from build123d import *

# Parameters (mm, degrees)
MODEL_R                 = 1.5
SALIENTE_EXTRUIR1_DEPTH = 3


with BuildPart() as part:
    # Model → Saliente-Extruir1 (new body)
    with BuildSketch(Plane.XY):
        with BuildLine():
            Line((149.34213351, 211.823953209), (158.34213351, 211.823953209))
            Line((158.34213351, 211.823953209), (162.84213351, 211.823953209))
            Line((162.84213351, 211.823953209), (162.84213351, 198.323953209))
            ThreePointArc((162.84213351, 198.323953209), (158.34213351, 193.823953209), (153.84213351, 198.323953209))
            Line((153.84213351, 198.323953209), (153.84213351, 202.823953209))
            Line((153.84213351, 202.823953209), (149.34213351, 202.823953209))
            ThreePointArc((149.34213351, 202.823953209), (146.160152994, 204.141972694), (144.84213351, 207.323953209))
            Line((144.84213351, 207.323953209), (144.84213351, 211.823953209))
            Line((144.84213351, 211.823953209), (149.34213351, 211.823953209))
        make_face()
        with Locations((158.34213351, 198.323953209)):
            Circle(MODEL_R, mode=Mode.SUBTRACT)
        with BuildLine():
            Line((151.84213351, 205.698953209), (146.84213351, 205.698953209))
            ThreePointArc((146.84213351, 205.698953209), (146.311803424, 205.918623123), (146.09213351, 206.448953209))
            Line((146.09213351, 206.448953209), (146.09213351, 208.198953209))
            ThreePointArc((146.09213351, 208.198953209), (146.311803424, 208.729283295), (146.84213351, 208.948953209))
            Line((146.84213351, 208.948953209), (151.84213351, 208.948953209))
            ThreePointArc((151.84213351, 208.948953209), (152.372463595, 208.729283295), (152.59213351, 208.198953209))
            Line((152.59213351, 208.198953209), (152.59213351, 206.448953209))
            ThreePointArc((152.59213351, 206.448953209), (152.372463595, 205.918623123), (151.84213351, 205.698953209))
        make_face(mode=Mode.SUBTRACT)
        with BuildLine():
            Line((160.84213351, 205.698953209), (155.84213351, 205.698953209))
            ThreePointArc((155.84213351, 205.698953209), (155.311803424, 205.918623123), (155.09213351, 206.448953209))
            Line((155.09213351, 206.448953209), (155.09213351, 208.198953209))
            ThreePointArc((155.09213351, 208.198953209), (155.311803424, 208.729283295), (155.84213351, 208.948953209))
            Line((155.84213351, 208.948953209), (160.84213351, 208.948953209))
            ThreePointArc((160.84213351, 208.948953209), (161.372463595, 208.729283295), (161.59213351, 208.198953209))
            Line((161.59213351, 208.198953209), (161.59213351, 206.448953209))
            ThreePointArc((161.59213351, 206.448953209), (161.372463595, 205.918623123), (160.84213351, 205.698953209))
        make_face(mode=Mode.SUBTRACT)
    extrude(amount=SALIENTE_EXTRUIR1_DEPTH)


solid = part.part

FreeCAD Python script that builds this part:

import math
import FreeCAD as App
import Part
import Sketcher
from FreeCAD import Vector
Q = App.Units.Quantity

doc = App.newDocument("Part")
body = doc.addObject("PartDesign::Body", "Body")

sketch1 = doc.addObject("Sketcher::SketchObject", "Sketch")
body.addObject(sketch1)
sketch1.AttachmentSupport = (doc.XY_Plane, [""])
sketch1.MapMode = "FlatFace"
sketch1.addGeometry([
    Part.LineSegment(Vector(162.8, 198.3, 0), Vector(162.8, 211.8, 0)),
    Part.LineSegment(Vector(162.8, 211.8, 0), Vector(144.8, 211.8, 0)),
    Part.LineSegment(Vector(144.8, 211.8, 0), Vector(144.8, 207.3, 0)),
    Part.ArcOfCircle(Part.Circle(Vector(149.3, 207.3, 0), Vector(0, 0, 1), 4.5), math.radians(180), math.radians(270)),
    Part.LineSegment(Vector(149.3, 202.8, 0), Vector(153.8, 202.8, 0)),
    Part.LineSegment(Vector(153.8, 202.8, 0), Vector(153.8, 198.3, 0)),
    Part.ArcOfCircle(Part.Circle(Vector(158.3, 198.3, 0), Vector(0, 0, 1), 4.5), math.radians(180), math.radians(360)),
    Part.Circle(Vector(158.3, 198.3, 0), Vector(0, 0, 1), 1.5),
    Part.LineSegment(Vector(160.8, 205.7, 0), Vector(155.8, 205.7, 0)),
    Part.ArcOfCircle(Part.Circle(Vector(155.8, 206.4, 0), Vector(0, 0, 1), 0.8), math.radians(180), math.radians(270)),
    Part.LineSegment(Vector(155.1, 206.4, 0), Vector(155.1, 208.2, 0)),
    Part.ArcOfCircle(Part.Circle(Vector(155.8, 208.2, 0), Vector(0, 0, 1), 0.8), math.radians(90), math.radians(180)),
    Part.LineSegment(Vector(155.8, 208.9, 0), Vector(160.8, 208.9, 0)),
    Part.ArcOfCircle(Part.Circle(Vector(160.8, 208.2, 0), Vector(0, 0, 1), 0.8), math.radians(0), math.radians(90)),
    Part.LineSegment(Vector(161.6, 208.2, 0), Vector(161.6, 206.4, 0)),
    Part.ArcOfCircle(Part.Circle(Vector(160.8, 206.4, 0), Vector(0, 0, 1), 0.8), math.radians(-90), math.radians(0)),
    Part.LineSegment(Vector(151.8, 205.7, 0), Vector(146.8, 205.7, 0)),
    Part.ArcOfCircle(Part.Circle(Vector(146.8, 206.4, 0), Vector(0, 0, 1), 0.8), math.radians(180), math.radians(270)),
    Part.LineSegment(Vector(146.1, 206.4, 0), Vector(146.1, 208.2, 0)),
    Part.ArcOfCircle(Part.Circle(Vector(146.8, 208.2, 0), Vector(0, 0, 1), 0.8), math.radians(90), math.radians(180)),
    Part.LineSegment(Vector(146.8, 208.9, 0), Vector(151.8, 208.9, 0)),
    Part.ArcOfCircle(Part.Circle(Vector(151.8, 208.2, 0), Vector(0, 0, 1), 0.8), math.radians(0), math.radians(90)),
    Part.LineSegment(Vector(152.6, 208.2, 0), Vector(152.6, 206.4, 0)),
    Part.ArcOfCircle(Part.Circle(Vector(151.8, 206.4, 0), Vector(0, 0, 1), 0.8), math.radians(-90), math.radians(0)),
], False)
sketch1.addConstraint([
    Sketcher.Constraint("Coincident", 0, 2, 1, 1),
    Sketcher.Constraint("Coincident", 1, 2, 2, 1),
    Sketcher.Constraint("Tangent", 2, 2, 3, 1),
    Sketcher.Constraint("Tangent", 3, 2, 4, 1),
    Sketcher.Constraint("Coincident", 4, 2, 5, 1),
    Sketcher.Constraint("Tangent", 5, 2, 6, 1),
    Sketcher.Constraint("Tangent", 6, 2, 0, 1),
    Sketcher.Constraint("Tangent", 8, 2, 9, 2),
    Sketcher.Constraint("Tangent", 9, 1, 10, 1),
    Sketcher.Constraint("Tangent", 10, 2, 11, 2),
    Sketcher.Constraint("Tangent", 11, 1, 12, 1),
    Sketcher.Constraint("Tangent", 12, 2, 13, 2),
    Sketcher.Constraint("Tangent", 13, 1, 14, 1),
    Sketcher.Constraint("Tangent", 14, 2, 15, 2),
    Sketcher.Constraint("Tangent", 15, 1, 8, 1),
    Sketcher.Constraint("Tangent", 16, 2, 17, 2),
    Sketcher.Constraint("Tangent", 17, 1, 18, 1),
    Sketcher.Constraint("Tangent", 18, 2, 19, 2),
    Sketcher.Constraint("Tangent", 19, 1, 20, 1),
    Sketcher.Constraint("Tangent", 20, 2, 21, 2),
    Sketcher.Constraint("Tangent", 21, 1, 22, 1),
    Sketcher.Constraint("Tangent", 22, 2, 23, 2),
    Sketcher.Constraint("Tangent", 23, 1, 16, 1),
    Sketcher.Constraint("Vertical", 0),
    Sketcher.Constraint("Horizontal", 1),
    Sketcher.Constraint("Vertical", 2),
    Sketcher.Constraint("Horizontal", 4),
    Sketcher.Constraint("Vertical", 5),
    Sketcher.Constraint("Horizontal", 8),
    Sketcher.Constraint("Vertical", 10),
    Sketcher.Constraint("Horizontal", 12),
    Sketcher.Constraint("Vertical", 14),
    Sketcher.Constraint("Horizontal", 16),
    Sketcher.Constraint("Vertical", 18),
    Sketcher.Constraint("Horizontal", 20),
    Sketcher.Constraint("Vertical", 22),
    Sketcher.Constraint("Coincident", 7, 3, 6, 3),
    Sketcher.Constraint("Equal", 3, 6),
    Sketcher.Constraint("Equal", 9, 11),
    Sketcher.Constraint("Equal", 11, 13),
    Sketcher.Constraint("Equal", 13, 15),
    Sketcher.Constraint("Equal", 15, 17),
    Sketcher.Constraint("Equal", 17, 19),
    Sketcher.Constraint("Equal", 19, 21),
    Sketcher.Constraint("Equal", 21, 23),
    Sketcher.Constraint("Horizontal", 15, 3, 17, 3),
    Sketcher.Constraint("Horizontal", 13, 3, 19, 3),
    Sketcher.Constraint("Equal", 12, 16),
    Sketcher.Constraint("Equal", 4, 2),
    Sketcher.Constraint("Equal", 2, 5),
    Sketcher.Constraint("Diameter", 7, Q("3 mm")),
    Sketcher.Constraint("Radius", 3, Q("4.5 mm")),
    Sketcher.Constraint("DistanceX", 1, 2, 1, 1, Q("18 mm")),
    Sketcher.Constraint("DistanceX", 8, 2, 8, 1, Q("5 mm")),
    Sketcher.Constraint("Radius", 9, Q("0.75 mm")),
    Sketcher.Constraint("DistanceX", 17, 3, 9, 3, Q("9 mm")),
    Sketcher.Constraint("DistanceX", 13, 3, 0, 2, Q("2 mm")),
    Sketcher.Constraint("DistanceY", 10, 1, 10, 2, Q("1.75 mm")),
    Sketcher.Constraint("DistanceY", 9, 3, 3, 3, Q("0.875 mm")),
    Sketcher.Constraint("DistanceX", -1, 1, 3, 3, Q("149.342134 mm")),
    Sketcher.Constraint("DistanceY", -1, 1, 3, 3, Q("207.323953 mm")),
])
pad1 = doc.addObject("PartDesign::Pad", "Pad")
body.addObject(pad1)
pad1.Profile = sketch1
pad1.Length = 3

doc.recompute()
